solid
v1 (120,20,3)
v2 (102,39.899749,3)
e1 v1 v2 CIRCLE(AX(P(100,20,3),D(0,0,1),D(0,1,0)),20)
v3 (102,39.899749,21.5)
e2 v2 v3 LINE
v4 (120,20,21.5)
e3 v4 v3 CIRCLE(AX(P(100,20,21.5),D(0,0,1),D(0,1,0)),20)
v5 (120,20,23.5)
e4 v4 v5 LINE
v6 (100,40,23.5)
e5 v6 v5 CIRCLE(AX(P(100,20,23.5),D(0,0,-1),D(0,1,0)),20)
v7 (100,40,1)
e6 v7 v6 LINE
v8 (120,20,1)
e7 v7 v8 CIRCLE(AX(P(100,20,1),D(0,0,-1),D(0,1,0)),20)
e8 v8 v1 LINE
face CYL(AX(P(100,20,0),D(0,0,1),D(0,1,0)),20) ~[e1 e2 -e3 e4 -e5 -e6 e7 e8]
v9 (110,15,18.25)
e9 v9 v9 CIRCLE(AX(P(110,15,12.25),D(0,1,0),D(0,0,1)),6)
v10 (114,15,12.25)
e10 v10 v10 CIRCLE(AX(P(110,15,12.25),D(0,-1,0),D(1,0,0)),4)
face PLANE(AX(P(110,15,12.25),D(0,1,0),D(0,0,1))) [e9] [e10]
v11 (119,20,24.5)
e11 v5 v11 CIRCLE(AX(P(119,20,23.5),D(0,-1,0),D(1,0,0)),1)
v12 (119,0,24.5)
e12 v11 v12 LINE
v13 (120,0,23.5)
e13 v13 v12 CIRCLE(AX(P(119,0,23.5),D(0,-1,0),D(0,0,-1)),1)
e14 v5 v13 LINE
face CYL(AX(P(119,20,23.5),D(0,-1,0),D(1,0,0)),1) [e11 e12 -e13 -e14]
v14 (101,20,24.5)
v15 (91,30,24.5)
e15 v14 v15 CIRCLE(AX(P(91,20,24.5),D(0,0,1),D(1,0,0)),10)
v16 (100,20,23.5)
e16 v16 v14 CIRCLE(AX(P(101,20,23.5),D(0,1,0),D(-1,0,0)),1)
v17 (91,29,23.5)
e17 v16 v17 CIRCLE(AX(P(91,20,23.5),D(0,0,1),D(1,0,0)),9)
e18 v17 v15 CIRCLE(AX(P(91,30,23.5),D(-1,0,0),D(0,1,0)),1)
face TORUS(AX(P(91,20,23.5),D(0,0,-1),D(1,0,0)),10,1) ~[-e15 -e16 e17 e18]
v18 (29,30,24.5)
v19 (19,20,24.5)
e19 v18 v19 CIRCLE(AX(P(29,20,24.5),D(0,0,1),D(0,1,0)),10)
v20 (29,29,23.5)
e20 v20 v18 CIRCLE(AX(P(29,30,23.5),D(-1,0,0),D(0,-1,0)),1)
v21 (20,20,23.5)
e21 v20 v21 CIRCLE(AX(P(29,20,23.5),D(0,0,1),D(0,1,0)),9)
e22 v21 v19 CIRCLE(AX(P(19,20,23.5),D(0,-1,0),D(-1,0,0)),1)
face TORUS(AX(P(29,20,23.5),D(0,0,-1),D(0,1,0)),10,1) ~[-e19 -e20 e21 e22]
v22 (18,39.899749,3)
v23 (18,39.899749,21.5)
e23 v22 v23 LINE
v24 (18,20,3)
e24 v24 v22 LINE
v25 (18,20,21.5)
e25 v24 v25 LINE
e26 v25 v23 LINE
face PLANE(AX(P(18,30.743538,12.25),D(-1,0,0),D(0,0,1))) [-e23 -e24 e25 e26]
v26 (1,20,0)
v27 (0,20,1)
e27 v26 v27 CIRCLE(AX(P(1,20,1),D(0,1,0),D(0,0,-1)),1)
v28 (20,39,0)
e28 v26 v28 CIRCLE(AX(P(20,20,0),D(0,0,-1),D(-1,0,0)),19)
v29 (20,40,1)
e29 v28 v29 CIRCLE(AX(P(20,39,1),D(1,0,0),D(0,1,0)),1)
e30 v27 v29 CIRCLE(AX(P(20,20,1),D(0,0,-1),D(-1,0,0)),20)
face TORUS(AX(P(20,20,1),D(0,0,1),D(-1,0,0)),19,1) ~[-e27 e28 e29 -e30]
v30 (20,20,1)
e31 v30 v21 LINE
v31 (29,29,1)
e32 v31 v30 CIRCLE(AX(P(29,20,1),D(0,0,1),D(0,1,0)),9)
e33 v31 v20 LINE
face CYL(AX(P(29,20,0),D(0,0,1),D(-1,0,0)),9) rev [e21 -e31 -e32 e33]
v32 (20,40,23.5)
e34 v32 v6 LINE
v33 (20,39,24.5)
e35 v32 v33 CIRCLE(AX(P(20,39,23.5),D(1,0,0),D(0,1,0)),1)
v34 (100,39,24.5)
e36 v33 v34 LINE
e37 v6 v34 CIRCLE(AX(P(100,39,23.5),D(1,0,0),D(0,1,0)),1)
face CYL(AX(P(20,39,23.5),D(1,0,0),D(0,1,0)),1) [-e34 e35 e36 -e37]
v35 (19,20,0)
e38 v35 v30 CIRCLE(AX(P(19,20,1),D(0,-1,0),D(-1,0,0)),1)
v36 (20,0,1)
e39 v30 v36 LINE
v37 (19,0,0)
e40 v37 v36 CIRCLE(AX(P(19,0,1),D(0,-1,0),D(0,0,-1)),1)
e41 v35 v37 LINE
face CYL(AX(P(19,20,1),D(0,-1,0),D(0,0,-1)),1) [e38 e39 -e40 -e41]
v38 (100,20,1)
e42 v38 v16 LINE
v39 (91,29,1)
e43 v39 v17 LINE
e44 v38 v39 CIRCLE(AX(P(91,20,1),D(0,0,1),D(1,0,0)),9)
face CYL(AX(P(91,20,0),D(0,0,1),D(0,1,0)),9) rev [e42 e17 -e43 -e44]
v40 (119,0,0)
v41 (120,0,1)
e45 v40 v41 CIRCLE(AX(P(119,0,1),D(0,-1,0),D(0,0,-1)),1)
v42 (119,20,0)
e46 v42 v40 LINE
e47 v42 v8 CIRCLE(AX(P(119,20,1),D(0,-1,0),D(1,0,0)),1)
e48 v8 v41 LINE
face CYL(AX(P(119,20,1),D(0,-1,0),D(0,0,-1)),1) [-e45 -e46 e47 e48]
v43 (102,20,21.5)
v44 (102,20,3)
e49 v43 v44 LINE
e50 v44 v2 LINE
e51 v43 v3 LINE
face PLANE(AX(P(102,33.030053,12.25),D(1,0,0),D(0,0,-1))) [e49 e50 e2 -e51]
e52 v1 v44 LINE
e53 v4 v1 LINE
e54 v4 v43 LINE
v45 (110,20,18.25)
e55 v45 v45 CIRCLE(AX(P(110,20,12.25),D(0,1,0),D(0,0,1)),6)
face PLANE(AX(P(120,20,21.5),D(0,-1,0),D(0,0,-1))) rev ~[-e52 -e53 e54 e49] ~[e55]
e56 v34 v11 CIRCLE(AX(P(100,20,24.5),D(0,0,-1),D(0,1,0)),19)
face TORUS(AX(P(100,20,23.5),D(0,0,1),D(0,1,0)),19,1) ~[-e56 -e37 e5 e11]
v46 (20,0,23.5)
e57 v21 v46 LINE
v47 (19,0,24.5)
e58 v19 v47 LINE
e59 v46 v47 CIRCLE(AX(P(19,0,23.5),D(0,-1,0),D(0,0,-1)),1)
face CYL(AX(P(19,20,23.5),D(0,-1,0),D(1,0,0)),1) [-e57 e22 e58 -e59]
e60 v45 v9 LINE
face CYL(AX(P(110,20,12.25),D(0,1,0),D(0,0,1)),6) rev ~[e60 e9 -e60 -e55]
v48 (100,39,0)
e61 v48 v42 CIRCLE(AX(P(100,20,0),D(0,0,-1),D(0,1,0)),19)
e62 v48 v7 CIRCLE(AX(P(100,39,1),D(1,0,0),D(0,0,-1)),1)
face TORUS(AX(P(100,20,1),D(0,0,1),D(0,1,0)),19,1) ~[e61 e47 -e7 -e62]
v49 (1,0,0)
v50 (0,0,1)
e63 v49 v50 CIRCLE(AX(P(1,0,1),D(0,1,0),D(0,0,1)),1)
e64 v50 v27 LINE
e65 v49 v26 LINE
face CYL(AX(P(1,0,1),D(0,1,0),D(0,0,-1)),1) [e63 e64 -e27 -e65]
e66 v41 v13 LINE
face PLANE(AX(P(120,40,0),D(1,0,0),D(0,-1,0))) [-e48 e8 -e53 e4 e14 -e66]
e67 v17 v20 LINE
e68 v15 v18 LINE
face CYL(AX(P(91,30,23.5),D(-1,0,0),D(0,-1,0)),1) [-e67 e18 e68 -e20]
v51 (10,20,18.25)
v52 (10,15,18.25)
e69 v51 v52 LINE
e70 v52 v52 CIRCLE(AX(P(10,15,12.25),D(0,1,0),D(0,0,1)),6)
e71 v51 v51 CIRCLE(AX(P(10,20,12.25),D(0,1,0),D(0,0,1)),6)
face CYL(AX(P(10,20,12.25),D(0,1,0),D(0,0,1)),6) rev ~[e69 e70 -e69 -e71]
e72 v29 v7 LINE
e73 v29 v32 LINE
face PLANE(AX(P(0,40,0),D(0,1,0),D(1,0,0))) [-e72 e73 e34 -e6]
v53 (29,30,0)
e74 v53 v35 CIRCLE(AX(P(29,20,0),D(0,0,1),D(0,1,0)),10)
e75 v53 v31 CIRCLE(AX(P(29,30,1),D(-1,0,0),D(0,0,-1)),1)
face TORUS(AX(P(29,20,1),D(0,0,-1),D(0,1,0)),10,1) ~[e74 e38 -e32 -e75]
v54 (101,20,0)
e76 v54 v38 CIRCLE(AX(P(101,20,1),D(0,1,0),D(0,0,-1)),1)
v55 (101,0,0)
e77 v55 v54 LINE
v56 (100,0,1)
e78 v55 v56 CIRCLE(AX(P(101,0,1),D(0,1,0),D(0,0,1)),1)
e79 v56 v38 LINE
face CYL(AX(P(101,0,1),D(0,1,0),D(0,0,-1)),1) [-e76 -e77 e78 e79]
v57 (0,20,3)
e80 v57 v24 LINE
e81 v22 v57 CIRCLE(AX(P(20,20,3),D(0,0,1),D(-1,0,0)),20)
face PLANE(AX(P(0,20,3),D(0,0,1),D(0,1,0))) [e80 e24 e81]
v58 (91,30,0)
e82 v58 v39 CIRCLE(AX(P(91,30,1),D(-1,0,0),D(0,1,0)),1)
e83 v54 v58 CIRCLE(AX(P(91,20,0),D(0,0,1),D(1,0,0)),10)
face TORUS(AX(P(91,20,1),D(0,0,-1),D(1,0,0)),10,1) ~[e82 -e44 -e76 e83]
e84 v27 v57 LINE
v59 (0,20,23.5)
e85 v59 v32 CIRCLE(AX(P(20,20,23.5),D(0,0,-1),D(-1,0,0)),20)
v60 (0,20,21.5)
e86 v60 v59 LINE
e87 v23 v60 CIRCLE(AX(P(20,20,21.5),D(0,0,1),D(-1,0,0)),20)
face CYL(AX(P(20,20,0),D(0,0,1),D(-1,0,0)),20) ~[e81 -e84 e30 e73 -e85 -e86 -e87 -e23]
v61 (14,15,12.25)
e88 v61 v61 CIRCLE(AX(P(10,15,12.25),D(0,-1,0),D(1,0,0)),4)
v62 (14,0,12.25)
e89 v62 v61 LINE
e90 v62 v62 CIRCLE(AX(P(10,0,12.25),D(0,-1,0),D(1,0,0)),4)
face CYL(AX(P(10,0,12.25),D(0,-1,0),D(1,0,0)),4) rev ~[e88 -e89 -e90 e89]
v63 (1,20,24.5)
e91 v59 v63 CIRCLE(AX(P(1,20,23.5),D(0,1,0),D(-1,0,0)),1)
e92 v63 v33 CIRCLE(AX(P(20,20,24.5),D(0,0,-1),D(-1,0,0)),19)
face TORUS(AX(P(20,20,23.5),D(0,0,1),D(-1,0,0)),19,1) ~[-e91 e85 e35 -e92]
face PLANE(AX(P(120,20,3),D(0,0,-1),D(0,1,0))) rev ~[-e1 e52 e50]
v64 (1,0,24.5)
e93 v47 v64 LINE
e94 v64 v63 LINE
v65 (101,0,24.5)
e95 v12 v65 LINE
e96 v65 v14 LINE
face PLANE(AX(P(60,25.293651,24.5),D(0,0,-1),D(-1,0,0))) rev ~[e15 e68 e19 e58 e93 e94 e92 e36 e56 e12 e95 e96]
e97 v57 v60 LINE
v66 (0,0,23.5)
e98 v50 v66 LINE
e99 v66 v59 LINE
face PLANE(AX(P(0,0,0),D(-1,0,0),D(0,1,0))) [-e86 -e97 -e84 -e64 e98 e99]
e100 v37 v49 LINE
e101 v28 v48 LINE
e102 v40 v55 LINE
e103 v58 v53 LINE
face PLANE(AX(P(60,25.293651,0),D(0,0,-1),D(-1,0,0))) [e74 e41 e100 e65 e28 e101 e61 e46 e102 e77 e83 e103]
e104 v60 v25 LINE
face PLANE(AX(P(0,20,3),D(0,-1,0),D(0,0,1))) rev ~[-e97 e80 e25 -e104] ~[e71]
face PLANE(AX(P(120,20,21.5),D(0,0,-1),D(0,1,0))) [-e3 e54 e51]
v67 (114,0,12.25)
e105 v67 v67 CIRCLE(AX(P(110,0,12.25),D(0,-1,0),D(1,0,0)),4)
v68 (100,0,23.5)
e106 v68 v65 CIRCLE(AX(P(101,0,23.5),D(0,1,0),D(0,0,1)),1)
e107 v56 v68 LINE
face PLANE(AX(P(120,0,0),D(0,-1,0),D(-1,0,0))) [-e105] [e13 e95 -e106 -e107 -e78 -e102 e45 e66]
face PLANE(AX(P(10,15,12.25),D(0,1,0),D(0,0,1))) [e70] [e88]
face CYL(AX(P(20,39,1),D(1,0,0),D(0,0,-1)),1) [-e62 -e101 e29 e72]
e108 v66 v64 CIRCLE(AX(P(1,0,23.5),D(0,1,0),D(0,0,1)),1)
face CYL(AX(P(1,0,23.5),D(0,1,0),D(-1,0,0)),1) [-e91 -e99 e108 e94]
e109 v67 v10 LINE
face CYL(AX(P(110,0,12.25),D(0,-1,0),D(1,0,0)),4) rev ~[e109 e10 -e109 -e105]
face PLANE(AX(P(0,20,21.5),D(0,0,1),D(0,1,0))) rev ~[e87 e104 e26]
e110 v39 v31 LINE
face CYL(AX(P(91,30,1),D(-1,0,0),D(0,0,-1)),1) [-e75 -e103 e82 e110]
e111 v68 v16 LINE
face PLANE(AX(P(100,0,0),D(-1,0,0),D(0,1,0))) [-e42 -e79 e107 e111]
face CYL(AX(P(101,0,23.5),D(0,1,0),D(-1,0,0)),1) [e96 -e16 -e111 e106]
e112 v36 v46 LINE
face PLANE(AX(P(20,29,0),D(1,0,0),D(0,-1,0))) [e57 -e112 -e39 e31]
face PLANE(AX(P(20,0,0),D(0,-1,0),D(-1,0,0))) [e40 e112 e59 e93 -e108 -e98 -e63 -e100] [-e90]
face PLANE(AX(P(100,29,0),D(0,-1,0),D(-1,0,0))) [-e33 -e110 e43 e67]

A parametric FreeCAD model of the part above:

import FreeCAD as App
import Part
import Sketcher
from FreeCAD import Vector
Q = App.Units.Quantity


def edges_at(feature, points):
    """Names of the edges that pass closest to the given points."""
    edges = feature.Shape.Edges
    near = lambda p: min(range(len(edges)), key=lambda i: edges[i].distToShape(Part.Vertex(*p))[0])
    return sorted({f"Edge{near(p) + 1}" for p in points})


def add_polygon(sketch, points):
    """Adds a closed chain of lines whose ends are joined by coincident constraints."""
    first, n = sketch.GeometryCount, len(points)
    for a, b in zip(points, points[1:] + points[:1]):
        sketch.addGeometry(Part.LineSegment(App.Vector(*a, 0), App.Vector(*b, 0)), False)
    for i in range(n):
        sketch.addConstraint(Sketcher.Constraint("Coincident", first + i, 2, first + (i + 1) % n, 1))

doc = App.newDocument("Part")
body = doc.addObject("PartDesign::Body", "Body")

sketch1 = doc.addObject("Sketcher::SketchObject", "Sketch")
body.addObject(sketch1)
sketch1.AttachmentSupport = (doc.XY_Plane, [""])
sketch1.MapMode = "FlatFace"
add_polygon(sketch1, [(0, 40), (0, 0), (20, 0), (20, 29), (100, 29), (100, 0), (120, 0), (120, 40)])
sketch1.addConstraint(Sketcher.Constraint("Vertical", 0))
sketch1.addConstraint(Sketcher.Constraint("Horizontal", 1))
sketch1.addConstraint(Sketcher.Constraint("Vertical", 2))
sketch1.addConstraint(Sketcher.Constraint("Horizontal", 3))
sketch1.addConstraint(Sketcher.Constraint("Vertical", 4))
sketch1.addConstraint(Sketcher.Constraint("Horizontal", 5))
sketch1.addConstraint(Sketcher.Constraint("Vertical", 6))
sketch1.addConstraint(Sketcher.Constraint("Horizontal", 7))
sketch1.addConstraint(Sketcher.Constraint("Coincident", 0, 2, -1, 1))
sketch1.addConstraint(Sketcher.Constraint("PointOnObject", 4, 2, -1))
sketch1.addConstraint(Sketcher.Constraint("Equal", 1, 5))
sketch1.addConstraint(Sketcher.Constraint("DistanceX", 1, 1, 1, 2, Q("20 mm")))
sketch1.addConstraint(Sketcher.Constraint("DistanceX", 3, 1, 3, 2, Q("80 mm")))
sketch1.addConstraint(Sketcher.Constraint("DistanceY", 0, 2, 0, 1, Q("40 mm")))
sketch1.addConstraint(Sketcher.Constraint("DistanceY", 2, 1, 2, 2, Q("29 mm")))
pad1 = doc.addObject("PartDesign::Pad", "Pad")
body.addObject(pad1)
pad1.Profile = sketch1
pad1.Length = 24.5
doc.recompute()

fillet = doc.addObject("PartDesign::Fillet", "Fillet")
body.addObject(fillet)
fillet.Base = (pad1, edges_at(pad1, [(0, 40, 12.25), (120, 40, 12.25)]))
fillet.Radius = 20
doc.recompute()

fillet2 = doc.addObject("PartDesign::Fillet", "Fillet001")
body.addObject(fillet2)
fillet2.Base = (fillet, edges_at(fillet, [(100, 29, 12.25), (20, 29, 12.25)]))
fillet2.Radius = 9

sketch2 = doc.addObject("Sketcher::SketchObject", "Sketch001")
body.addObject(sketch2)
sketch2.AttachmentSupport = (doc.YZ_Plane, [""])
sketch2.MapMode = "FlatFace"
sketch2.AttachmentOffset = App.Placement(Vector(0, 0, 120), App.Rotation())
add_polygon(sketch2, [(46, 22), (20, 22), (20, 3), (46, 3)])
sketch2.addConstraint(Sketcher.Constraint("Horizontal", 0))
sketch2.addConstraint(Sketcher.Constraint("Vertical", 1))
sketch2.addConstraint(Sketcher.Constraint("Horizontal", 2))
sketch2.addConstraint(Sketcher.Constraint("Vertical", 3))
sketch2.addConstraint(Sketcher.Constraint("DistanceY", 1, 2, 1, 1, Q("18.5 mm")))
sketch2.addConstraint(Sketcher.Constraint("DistanceX", -1, 1, 0, 2, Q("20 mm")))
sketch2.addConstraint(Sketcher.Constraint("DistanceY", -1, 1, 1, 2, Q("3 mm")))
sketch2.addConstraint(Sketcher.Constraint("DistanceX", 0, 2, 0, 1, Q("26.060106 mm")))
pocket1 = doc.addObject("PartDesign::Pocket", "Pocket")
body.addObject(pocket1)
pocket1.Profile = sketch2
pocket1.Length = 18

sketch3 = doc.addObject("Sketcher::SketchObject", "Sketch002")
body.addObject(sketch3)
sketch3.AttachmentSupport = (doc.YZ_Plane, [""])
sketch3.MapMode = "FlatFace"
add_polygon(sketch3, [(41, 3), (20, 3), (20, 22), (41, 22)])
sketch3.addConstraint(Sketcher.Constraint("Horizontal", 0))
sketch3.addConstraint(Sketcher.Constraint("Vertical", 1))
sketch3.addConstraint(Sketcher.Constraint("Horizontal", 2))
sketch3.addConstraint(Sketcher.Constraint("Vertical", 3))
sketch3.addConstraint(Sketcher.Constraint("DistanceY", 1, 1, 1, 2, Q("18.5 mm")))
sketch3.addConstraint(Sketcher.Constraint("DistanceX", -1, 1, 0, 2, Q("20 mm")))
sketch3.addConstraint(Sketcher.Constraint("DistanceY", -1, 1, 0, 2, Q("3 mm")))
sketch3.addConstraint(Sketcher.Constraint("DistanceX", 0, 2, 0, 1, Q("21.487076 mm")))
pocket2 = doc.addObject("PartDesign::Pocket", "Pocket001")
body.addObject(pocket2)
pocket2.Profile = sketch3
pocket2.Length = 18
pocket2.Reversed = True
doc.recompute()

fillet3 = doc.addObject("PartDesign::Fillet", "Fillet002")
body.addObject(fillet3)
fillet3.Base = (pocket2, edges_at(pocket2, [
    (20, 10, 0),
    (120, 10, 24.5),
    (0, 10, 0),
    (0, 10, 24.5),
    (60, 40, 0),
    (114.142, 34.142, 0),
    (5.858, 34.142, 0),
    (60, 40, 24.5),
    (114.142, 34.142, 24.5),
    (5.858, 34.142, 24.5),
    (60, 29, 0),
    (60, 29, 24.5),
    (100, 10, 0),
    (100, 10, 24.5),
    (22.636, 26.364, 0),
    (22.636, 26.364, 24.5),
    (97.364, 26.364, 0),
    (97.364, 26.364, 24.5),
    (20, 10, 24.5),
    (120, 10, 0),
]))
fillet3.Radius = 1

sketch4 = doc.addObject("Sketcher::SketchObject", "Sketch003")
body.addObject(sketch4)
sketch4.AttachmentSupport = (doc.XZ_Plane, [""])
sketch4.MapMode = "FlatFace"
sketch4.addGeometry(Part.Circle(Vector(10, 12.2, 0), Vector(0, 0, 1), 4), False)
sketch4.addGeometry(Part.Circle(Vector(110, 12.2, 0), Vector(0, 0, 1), 4), False)
sketch4.addConstraint(Sketcher.Constraint("Equal", 0, 1))
sketch4.addConstraint(Sketcher.Constraint("Horizontal", 0, 3, 1, 3))
sketch4.addConstraint(Sketcher.Constraint("Diameter", 0, Q("8 mm")))
sketch4.addConstraint(Sketcher.Constraint("DistanceX", -1, 1, 0, 3, Q("10 mm")))
sketch4.addConstraint(Sketcher.Constraint("DistanceX", -1, 1, 1, 3, Q("110 mm")))
sketch4.addConstraint(Sketcher.Constraint("DistanceY", -1, 1, 0, 3, Q("12.25 mm")))
pocket3 = doc.addObject("PartDesign::Pocket", "Pocket002")
body.addObject(pocket3)
pocket3.Profile = sketch4
pocket3.Type = "ThroughAll"

sketch5 = doc.addObject("Sketcher::SketchObject", "Sketch004")
body.addObject(sketch5)
sketch5.AttachmentSupport = (doc.XZ_Plane, [""])
sketch5.MapMode = "FlatFace"
sketch5.AttachmentOffset = App.Placement(Vector(0, 0, -20), App.Rotation())
sketch5.addGeometry(Part.Circle(Vector(10, 12, 0), Vector(0, 0, 1), 6), False)
sketch5.addGeometry(Part.Circle(Vector(110, 12, 0), Vector(0, 0, 1), 6), False)
sketch5.addConstraint(Sketcher.Constraint("Equal", 0, 1))
sketch5.addConstraint(Sketcher.Constraint("Horizontal", 0, 3, 1, 3))
sketch5.addConstraint(Sketcher.Constraint("Diameter", 0, Q("12 mm")))
sketch5.addConstraint(Sketcher.Constraint("DistanceX", -1, 1, 0, 3, Q("10 mm")))
sketch5.addConstraint(Sketcher.Constraint("DistanceX", -1, 1, 1, 3, Q("110 mm")))
sketch5.addConstraint(Sketcher.Constraint("DistanceY", -1, 1, 0, 3, Q("12.25 mm")))
pocket4 = doc.addObject("PartDesign::Pocket", "Pocket003")
body.addObject(pocket4)
pocket4.Profile = sketch5
pocket4.Length = 5
pocket4.Reversed = True

doc.recompute()
